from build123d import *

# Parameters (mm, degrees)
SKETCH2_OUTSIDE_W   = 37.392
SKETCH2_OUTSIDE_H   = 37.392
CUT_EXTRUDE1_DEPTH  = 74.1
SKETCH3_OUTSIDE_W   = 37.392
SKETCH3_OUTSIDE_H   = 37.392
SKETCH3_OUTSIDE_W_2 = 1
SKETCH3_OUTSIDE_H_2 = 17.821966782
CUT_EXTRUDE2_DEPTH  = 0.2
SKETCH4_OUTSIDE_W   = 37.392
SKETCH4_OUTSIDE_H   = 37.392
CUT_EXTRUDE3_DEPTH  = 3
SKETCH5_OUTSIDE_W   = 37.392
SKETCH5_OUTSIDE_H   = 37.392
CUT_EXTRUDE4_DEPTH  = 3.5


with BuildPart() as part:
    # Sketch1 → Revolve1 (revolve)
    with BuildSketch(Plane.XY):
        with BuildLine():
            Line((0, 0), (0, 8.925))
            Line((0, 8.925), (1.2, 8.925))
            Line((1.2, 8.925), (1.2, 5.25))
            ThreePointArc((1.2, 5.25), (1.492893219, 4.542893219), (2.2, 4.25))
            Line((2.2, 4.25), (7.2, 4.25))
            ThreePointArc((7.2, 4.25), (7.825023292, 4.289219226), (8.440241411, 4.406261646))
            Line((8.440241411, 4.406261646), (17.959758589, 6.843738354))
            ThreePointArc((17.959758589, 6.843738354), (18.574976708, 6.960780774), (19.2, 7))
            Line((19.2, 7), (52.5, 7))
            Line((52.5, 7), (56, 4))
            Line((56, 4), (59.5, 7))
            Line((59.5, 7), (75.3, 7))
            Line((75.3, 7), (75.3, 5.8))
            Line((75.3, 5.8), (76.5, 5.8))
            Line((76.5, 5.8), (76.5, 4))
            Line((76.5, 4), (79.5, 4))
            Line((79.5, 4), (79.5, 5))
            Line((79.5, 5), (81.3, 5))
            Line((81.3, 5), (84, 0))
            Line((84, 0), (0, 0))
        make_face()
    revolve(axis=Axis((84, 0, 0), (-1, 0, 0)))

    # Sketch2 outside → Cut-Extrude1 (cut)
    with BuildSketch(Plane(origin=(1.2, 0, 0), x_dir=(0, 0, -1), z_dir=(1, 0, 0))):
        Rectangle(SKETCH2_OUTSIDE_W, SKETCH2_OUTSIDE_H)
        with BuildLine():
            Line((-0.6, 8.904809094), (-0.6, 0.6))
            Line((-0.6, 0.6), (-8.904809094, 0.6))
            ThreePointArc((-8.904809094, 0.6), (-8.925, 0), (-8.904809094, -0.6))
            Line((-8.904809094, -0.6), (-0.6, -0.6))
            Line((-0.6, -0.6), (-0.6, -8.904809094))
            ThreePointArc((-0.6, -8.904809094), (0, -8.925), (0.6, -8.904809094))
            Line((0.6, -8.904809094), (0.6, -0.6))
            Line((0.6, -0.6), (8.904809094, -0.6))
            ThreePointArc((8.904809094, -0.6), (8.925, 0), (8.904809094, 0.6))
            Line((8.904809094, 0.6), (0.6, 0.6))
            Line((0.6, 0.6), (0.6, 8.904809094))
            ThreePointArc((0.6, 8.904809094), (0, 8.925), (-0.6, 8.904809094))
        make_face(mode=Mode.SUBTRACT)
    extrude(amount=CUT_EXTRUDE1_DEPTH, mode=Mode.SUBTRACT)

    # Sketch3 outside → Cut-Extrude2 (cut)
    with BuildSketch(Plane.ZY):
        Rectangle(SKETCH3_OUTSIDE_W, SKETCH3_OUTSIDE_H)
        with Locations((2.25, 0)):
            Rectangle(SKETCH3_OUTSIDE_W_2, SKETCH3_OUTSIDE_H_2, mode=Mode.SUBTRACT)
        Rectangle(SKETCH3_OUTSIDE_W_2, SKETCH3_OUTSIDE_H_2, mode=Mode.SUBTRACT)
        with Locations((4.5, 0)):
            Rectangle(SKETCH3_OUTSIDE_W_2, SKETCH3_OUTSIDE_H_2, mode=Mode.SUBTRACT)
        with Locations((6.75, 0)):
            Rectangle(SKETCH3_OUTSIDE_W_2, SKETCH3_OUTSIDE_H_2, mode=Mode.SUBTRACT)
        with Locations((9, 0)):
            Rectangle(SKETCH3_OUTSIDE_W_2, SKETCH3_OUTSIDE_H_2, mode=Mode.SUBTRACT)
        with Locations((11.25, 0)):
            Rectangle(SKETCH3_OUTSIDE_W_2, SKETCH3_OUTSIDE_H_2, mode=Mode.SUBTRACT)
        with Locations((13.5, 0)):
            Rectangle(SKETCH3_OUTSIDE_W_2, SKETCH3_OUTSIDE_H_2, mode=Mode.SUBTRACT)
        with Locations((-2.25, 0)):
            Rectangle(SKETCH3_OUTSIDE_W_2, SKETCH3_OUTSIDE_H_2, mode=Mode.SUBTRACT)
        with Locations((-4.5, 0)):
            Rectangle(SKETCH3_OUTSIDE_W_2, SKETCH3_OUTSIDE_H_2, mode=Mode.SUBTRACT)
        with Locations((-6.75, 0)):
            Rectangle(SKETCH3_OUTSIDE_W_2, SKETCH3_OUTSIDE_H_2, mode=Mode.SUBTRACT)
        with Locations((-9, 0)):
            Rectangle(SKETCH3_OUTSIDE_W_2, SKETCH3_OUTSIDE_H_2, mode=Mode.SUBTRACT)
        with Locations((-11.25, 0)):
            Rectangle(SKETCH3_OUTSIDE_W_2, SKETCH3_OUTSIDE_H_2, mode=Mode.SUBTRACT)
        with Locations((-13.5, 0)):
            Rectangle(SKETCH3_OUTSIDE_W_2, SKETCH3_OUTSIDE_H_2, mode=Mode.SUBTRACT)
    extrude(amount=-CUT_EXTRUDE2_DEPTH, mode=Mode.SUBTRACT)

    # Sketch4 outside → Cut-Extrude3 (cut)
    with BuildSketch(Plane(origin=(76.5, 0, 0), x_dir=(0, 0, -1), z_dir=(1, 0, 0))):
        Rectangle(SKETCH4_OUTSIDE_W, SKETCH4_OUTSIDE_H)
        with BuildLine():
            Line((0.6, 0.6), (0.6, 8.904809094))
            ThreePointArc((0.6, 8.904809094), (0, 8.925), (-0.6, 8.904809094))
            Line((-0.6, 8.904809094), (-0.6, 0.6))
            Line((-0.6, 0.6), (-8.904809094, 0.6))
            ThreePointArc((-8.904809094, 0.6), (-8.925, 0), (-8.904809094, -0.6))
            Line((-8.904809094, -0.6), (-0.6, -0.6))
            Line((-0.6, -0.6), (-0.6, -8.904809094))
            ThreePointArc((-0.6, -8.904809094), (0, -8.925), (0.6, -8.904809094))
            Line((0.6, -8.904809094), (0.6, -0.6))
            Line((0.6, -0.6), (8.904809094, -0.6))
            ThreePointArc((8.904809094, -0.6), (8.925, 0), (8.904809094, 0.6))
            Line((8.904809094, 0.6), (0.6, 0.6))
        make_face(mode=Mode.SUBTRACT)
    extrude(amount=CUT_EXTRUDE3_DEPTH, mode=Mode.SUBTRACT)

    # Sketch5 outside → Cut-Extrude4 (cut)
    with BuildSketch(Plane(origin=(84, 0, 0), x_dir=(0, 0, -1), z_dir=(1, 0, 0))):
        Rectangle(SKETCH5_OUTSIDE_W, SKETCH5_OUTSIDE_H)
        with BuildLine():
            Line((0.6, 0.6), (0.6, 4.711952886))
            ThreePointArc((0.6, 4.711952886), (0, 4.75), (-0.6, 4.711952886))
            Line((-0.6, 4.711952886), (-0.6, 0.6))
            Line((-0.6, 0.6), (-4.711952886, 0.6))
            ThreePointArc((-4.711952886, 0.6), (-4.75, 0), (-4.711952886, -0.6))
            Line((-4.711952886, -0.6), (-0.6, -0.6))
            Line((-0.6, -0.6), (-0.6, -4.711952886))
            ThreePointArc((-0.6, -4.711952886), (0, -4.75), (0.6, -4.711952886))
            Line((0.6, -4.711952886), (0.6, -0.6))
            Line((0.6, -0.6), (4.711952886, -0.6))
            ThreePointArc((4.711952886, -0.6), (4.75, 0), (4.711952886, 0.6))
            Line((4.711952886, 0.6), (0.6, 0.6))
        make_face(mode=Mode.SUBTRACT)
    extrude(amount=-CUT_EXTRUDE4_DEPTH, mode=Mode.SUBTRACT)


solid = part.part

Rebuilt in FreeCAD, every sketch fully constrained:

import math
import FreeCAD as App
import Part
import Sketcher

V = App.Vector
Q = App.Units.Quantity


def add_polygon(sketch, points):
    """Adds a closed chain of lines whose ends are joined by coincident constraints."""
    first, n = sketch.GeometryCount, len(points)
    for a, b in zip(points, points[1:] + points[:1]):
        sketch.addGeometry(Part.LineSegment(App.Vector(*a, 0), App.Vector(*b, 0)), False)
    for i in range(n):
        sketch.addConstraint(Sketcher.Constraint("Coincident", first + i, 2, first + (i + 1) % n, 1))

doc = App.newDocument("Part")
body = doc.addObject("PartDesign::Body", "Body")

# Sketch on XY plane
sketch1 = body.newObject("Sketcher::SketchObject", "Sketch")
sketch1.AttachmentSupport = (doc.getObject("XY_Plane"), [""])
sketch1.MapMode = "FlatFace"
sketch1.addGeometry(Part.LineSegment(V(0, 8.9, 0), V(0, 0, 0)), False)
sketch1.addGeometry(Part.LineSegment(V(0, 0, 0), V(84, 0, 0)), False)
sketch1.addGeometry(Part.LineSegment(V(84, 0, 0), V(81.3, 5, 0)), False)
sketch1.addGeometry(Part.LineSegment(V(81.3, 5, 0), V(79.5, 5, 0)), False)
sketch1.addGeometry(Part.LineSegment(V(79.5, 5, 0), V(79.5, 4, 0)), False)
sketch1.addGeometry(Part.LineSegment(V(79.5, 4, 0), V(76.5, 4, 0)), False)
sketch1.addGeometry(Part.LineSegment(V(76.5, 4, 0), V(76.5, 5.8, 0)), False)
sketch1.addGeometry(Part.LineSegment(V(76.5, 5.8, 0), V(75.3, 5.8, 0)), False)
sketch1.addGeometry(Part.LineSegment(V(75.3, 5.8, 0), V(75.3, 7, 0)), False)
sketch1.addGeometry(Part.LineSegment(V(75.3, 7, 0), V(59.5, 7, 0)), False)
sketch1.addGeometry(Part.LineSegment(V(59.5, 7, 0), V(56, 4, 0)), False)
sketch1.addGeometry(Part.LineSegment(V(56, 4, 0), V(52.5, 7, 0)), False)
sketch1.addGeometry(Part.LineSegment(V(52.5, 7, 0), V(19.2, 7, 0)), False)
sketch1.addGeometry(Part.ArcOfCircle(Part.Circle(V(19.2, 2, 0), V(0, 0, 1), 5), math.radians(90), math.radians(104.36)), False)
sketch1.addGeometry(Part.LineSegment(V(18, 6.8, 0), V(8.4, 4.4, 0)), False)
sketch1.addGeometry(Part.ArcOfCircle(Part.Circle(V(7.2, 9.2, 0), V(0, 0, 1), 5), math.radians(-90), math.radians(-75.64)), False)
sketch1.addGeometry(Part.LineSegment(V(7.2, 4.2, 0), V(2.2, 4.2, 0)), False)
sketch1.addGeometry(Part.ArcOfCircle(Part.Circle(V(2.2, 5.3, 0), V(0, 0, 1), 1), math.radians(-180), math.radians(-90)), False)
sketch1.addGeometry(Part.LineSegment(V(1.2, 5.2, 0), V(1.2, 8.9, 0)), False)
sketch1.addGeometry(Part.LineSegment(V(1.2, 8.9, 0), V(0, 8.9, 0)), False)
sketch1.addConstraint(Sketcher.Constraint("Coincident", 0, 2, 1, 1))
sketch1.addConstraint(Sketcher.Constraint("Coincident", 1, 2, 2, 1))
sketch1.addConstraint(Sketcher.Constraint("Coincident", 2, 2, 3, 1))
sketch1.addConstraint(Sketcher.Constraint("Coincident", 3, 2, 4, 1))
sketch1.addConstraint(Sketcher.Constraint("Coincident", 4, 2, 5, 1))
sketch1.addConstraint(Sketcher.Constraint("Coincident", 5, 2, 6, 1))
sketch1.addConstraint(Sketcher.Constraint("Coincident", 6, 2, 7, 1))
sketch1.addConstraint(Sketcher.Constraint("Coincident", 7, 2, 8, 1))
sketch1.addConstraint(Sketcher.Constraint("Coincident", 8, 2, 9, 1))
sketch1.addConstraint(Sketcher.Constraint("Coincident", 9, 2, 10, 1))
sketch1.addConstraint(Sketcher.Constraint("Coincident", 10, 2, 11, 1))
sketch1.addConstraint(Sketcher.Constraint("Coincident", 11, 2, 12, 1))
sketch1.addConstraint(Sketcher.Constraint("Tangent", 12, 2, 13, 1))
sketch1.addConstraint(Sketcher.Constraint("Tangent", 13, 2, 14, 1))
sketch1.addConstraint(Sketcher.Constraint("Tangent", 14, 2, 15, 2))
sketch1.addConstraint(Sketcher.Constraint("Tangent", 15, 1, 16, 1))
sketch1.addConstraint(Sketcher.Constraint("Tangent", 16, 2, 17, 2))
sketch1.addConstraint(Sketcher.Constraint("Tangent", 17, 1, 18, 1))
sketch1.addConstraint(Sketcher.Constraint("Coincident", 18, 2, 19, 1))
sketch1.addConstraint(Sketcher.Constraint("Coincident", 19, 2, 0, 1))
sketch1.addConstraint(Sketcher.Constraint("Vertical", 0))
sketch1.addConstraint(Sketcher.Constraint("Horizontal", 1))
sketch1.addConstraint(Sketcher.Constraint("Horizontal", 3))
sketch1.addConstraint(Sketcher.Constraint("Vertical", 4))
sketch1.addConstraint(Sketcher.Constraint("Horizontal", 5))
sketch1.addConstraint(Sketcher.Constraint("Vertical", 6))
sketch1.addConstraint(Sketcher.Constraint("Horizontal", 7))
sketch1.addConstraint(Sketcher.Constraint("Vertical", 8))
sketch1.addConstraint(Sketcher.Constraint("Horizontal", 9))
sketch1.addConstraint(Sketcher.Constraint("Horizontal", 12))
sketch1.addConstraint(Sketcher.Constraint("Horizontal", 16))
sketch1.addConstraint(Sketcher.Constraint("Vertical", 18))
sketch1.addConstraint(Sketcher.Constraint("Horizontal", 19))
sketch1.addConstraint(Sketcher.Constraint("Coincident", 0, 2, -1, 1))
sketch1.addConstraint(Sketcher.Constraint("Equal", 13, 15))
sketch1.addConstraint(Sketcher.Constraint("Horizontal", 5, 2, 10, 2))
sketch1.addConstraint(Sketcher.Constraint("Horizontal", 9, 2, 11, 2))
sketch1.addConstraint(Sketcher.Constraint("Equal", 7, 19))
sketch1.addConstraint(Sketcher.Constraint("Equal", 3, 6))
sketch1.addConstraint(Sketcher.Constraint("Equal", 19, 8))
sketch1.addConstraint(Sketcher.Constraint("Equal", 10, 11))
sketch1.addConstraint(Sketcher.Constraint("Radius", 13, Q("5 mm")))
sketch1.addConstraint(Sketcher.Constraint("Radius", 17, Q("1 mm")))
sketch1.addConstraint(Sketcher.Constraint("DistanceX", 1, 1, 1, 2, Q("84 mm")))
sketch1.addConstraint(Sketcher.Constraint("DistanceX", 5, 2, 5, 1, Q("3 mm")))
sketch1.addConstraint(Sketcher.Constraint("DistanceX", 16, 2, 16, 1, Q("5 mm")))
sketch1.addConstraint(Sketcher.Constraint("DistanceY", 4, 2, 4, 1, Q("1 mm")))
sketch1.addConstraint(Sketcher.Constraint("DistanceX", 3, 2, 3, 1, Q("1.8 mm")))
sketch1.addConstraint(Sketcher.Constraint("DistanceX", 7, 2, 7, 1, Q("1.2 mm")))
sketch1.addConstraint(Sketcher.Constraint("DistanceX", 9, 2, 9, 1, Q("15.8 mm")))
sketch1.addConstraint(Sketcher.Constraint("DistanceX", 12, 2, 12, 1, Q("33.3 mm")))
sketch1.addConstraint(Sketcher.Constraint("DistanceY", -1, 1, 13, 3, Q("2 mm")))
sketch1.addConstraint(Sketcher.Constraint("DistanceX", -1, 1, 10, 2, Q("56 mm")))
sketch1.addConstraint(Sketcher.Constraint("DistanceX", 15, 3, 13, 3, Q("12 mm")))
sketch1.addConstraint(Sketcher.Constraint("DistanceY", 0, 2, 0, 1, Q("8.925 mm")))
sketch1.addConstraint(Sketcher.Constraint("DistanceY", 18, 1, 18, 2, Q("3.675 mm")))
revolution = body.newObject("PartDesign::Revolution", "Revolution")
revolution.Profile = sketch1
revolution.ReferenceAxis = (sketch1, ["H_Axis"])
revolution.Angle = 360

# Sketch on YZ plane
sketch2 = body.newObject("Sketcher::SketchObject", "Sketch001")
sketch2.AttachmentSupport = (doc.getObject("YZ_Plane"), [""])
sketch2.MapMode = "FlatFace"
sketch2.AttachmentOffset = App.Placement(V(0, 0, 1.2), App.Rotation())
add_polygon(sketch2, [(18.7, 18.7), (-18.7, 18.7), (-18.7, -18.7), (18.7, -18.7)])  # lines 0-3
sketch2.addGeometry(Part.LineSegment(V(0.6, 0.6, 0), V(8.9, 0.6, 0)), False)  # 4
sketch2.addGeometry(Part.ArcOfCircle(Part.Circle(V(0, 0, 0), V(0, 0, 1), 8.9), math.radians(-3.85), math.radians(3.85)), False)  # 5
sketch2.addGeometry(Part.LineSegment(V(8.9, -0.6, 0), V(0.6, -0.6, 0)), False)  # 6
sketch2.addGeometry(Part.LineSegment(V(0.6, -0.6, 0), V(0.6, -8.9, 0)), False)  # 7
sketch2.addGeometry(Part.ArcOfCircle(Part.Circle(V(0, 0, 0), V(0, 0, 1), 8.9), math.radians(-93.85), math.radians(-86.15)), False)  # 8
sketch2.addGeometry(Part.LineSegment(V(-0.6, -8.9, 0), V(-0.6, -0.6, 0)), False)  # 9
sketch2.addGeometry(Part.LineSegment(V(-0.6, -0.6, 0), V(-8.9, -0.6, 0)), False)  # 10
sketch2.addGeometry(Part.ArcOfCircle(Part.Circle(V(0, 0, 0), V(0, 0, 1), 8.9), math.radians(176.15), math.radians(183.85)), False)  # 11
sketch2.addGeometry(Part.LineSegment(V(-8.9, 0.6, 0), V(-0.6, 0.6, 0)), False)  # 12
sketch2.addGeometry(Part.LineSegment(V(-0.6, 0.6, 0), V(-0.6, 8.9, 0)), False)  # 13
sketch2.addGeometry(Part.ArcOfCircle(Part.Circle(V(0, 0, 0), V(0, 0, 1), 8.9), math.radians(86.15), math.radians(93.85)), False)  # 14
sketch2.addGeometry(Part.LineSegment(V(0.6, 8.9, 0), V(0.6, 0.6, 0)), False)  # 15
sketch2.addConstraint(Sketcher.Constraint("Coincident", 4, 2, 5, 2))
sketch2.addConstraint(Sketcher.Constraint("Coincident", 5, 1, 6, 1))
sketch2.addConstraint(Sketcher.Constraint("Coincident", 6, 2, 7, 1))
sketch2.addConstraint(Sketcher.Constraint("Coincident", 7, 2, 8, 2))
sketch2.addConstraint(Sketcher.Constraint("Coincident", 8, 1, 9, 1))
sketch2.addConstraint(Sketcher.Constraint("Coincident", 9, 2, 10, 1))
sketch2.addConstraint(Sketcher.Constraint("Coincident", 10, 2, 11, 2))
sketch2.addConstraint(Sketcher.Constraint("Coincident", 11, 1, 12, 1))
sketch2.addConstraint(Sketcher.Constraint("Coincident", 12, 2, 13, 1))
sketch2.addConstraint(Sketcher.Constraint("Coincident", 13, 2, 14, 2))
sketch2.addConstraint(Sketcher.Constraint("Coincident", 14, 1, 15, 1))
sketch2.addConstraint(Sketcher.Constraint("Coincident", 15, 2, 4, 1))
sketch2.addConstraint(Sketcher.Constraint("Horizontal", 0))
sketch2.addConstraint(Sketcher.Constraint("Vertical", 1))
sketch2.addConstraint(Sketcher.Constraint("Horizontal", 2))
sketch2.addConstraint(Sketcher.Constraint("Vertical", 3))
sketch2.addConstraint(Sketcher.Constraint("Horizontal", 4))
sketch2.addConstraint(Sketcher.Constraint("Horizontal", 6))
sketch2.addConstraint(Sketcher.Constraint("Vertical", 7))
sketch2.addConstraint(Sketcher.Constraint("Vertical", 9))
sketch2.addConstraint(Sketcher.Constraint("Horizontal", 10))
sketch2.addConstraint(Sketcher.Constraint("Horizontal", 12))
sketch2.addConstraint(Sketcher.Constraint("Vertical", 13))
sketch2.addConstraint(Sketcher.Constraint("Vertical", 15))
sketch2.addConstraint(Sketcher.Constraint("Coincident", 5, 3, -1, 1))
sketch2.addConstraint(Sketcher.Constraint("Coincident", 8, 3, -1, 1))
sketch2.addConstraint(Sketcher.Constraint("Coincident", 11, 3, -1, 1))
sketch2.addConstraint(Sketcher.Constraint("Coincident", 14, 3, -1, 1))
sketch2.addConstraint(Sketcher.Constraint("Equal", 5, 8))
sketch2.addConstraint(Sketcher.Constraint("Equal", 8, 11))
sketch2.addConstraint(Sketcher.Constraint("Equal", 11, 14))
sketch2.addConstraint(Sketcher.Constraint("Symmetric", 0, 2, 2, 2, -1, 1))
sketch2.addConstraint(Sketcher.Constraint("Symmetric", 6, 2, 12, 2, -1, 1))
sketch2.addConstraint(Sketcher.Constraint("Symmetric", 9, 2, 15, 2, -1, 1))
sketch2.addConstraint(Sketcher.Constraint("Symmetric", 6, 2, 9, 2, -2))
sketch2.addConstraint(Sketcher.Constraint("Equal", 2, 1))
sketch2.addConstraint(Sketcher.Constraint("Equal", 12, 7))
sketch2.addConstraint(Sketcher.Constraint("Radius", 5, Q("8.925 mm")))
sketch2.addConstraint(Sketcher.Constraint("DistanceY", -1, 1, 4, 2, Q("0.6 mm")))
sketch2.addConstraint(Sketcher.Constraint("DistanceX", 0, 2, 0, 1, Q("37.392 mm")))
pocket1 = body.newObject("PartDesign::Pocket", "Pocket")
pocket1.Profile = sketch2
pocket1.Length = 74.1
pocket1.Reversed = True

# Sketch on YZ plane
sketch3 = body.newObject("Sketcher::SketchObject", "Sketch002")
sketch3.AttachmentSupport = (doc.getObject("YZ_Plane"), [""])
sketch3.MapMode = "FlatFace"
add_polygon(sketch3, [(18.7, -18.7), (-18.7, -18.7), (-18.7, 18.7), (18.7, 18.7)])  # lines 0-3
add_polygon(sketch3, [(-8.9, -13), (-8.9, -14), (8.9, -14), (8.9, -13)])  # lines 4-7
add_polygon(sketch3, [(-8.9, -10.8), (-8.9, -11.8), (8.9, -11.8), (8.9, -10.8)])  # lines 8-11
add_polygon(sketch3, [(-8.9, -8.5), (-8.9, -9.5), (8.9, -9.5), (8.9, -8.5)])  # lines 12-15
add_polygon(sketch3, [(-8.9, -6.2), (-8.9, -7.2), (8.9, -7.2), (8.9, -6.2)])  # lines 16-19
add_polygon(sketch3, [(-8.9, -4), (-8.9, -5), (8.9, -5), (8.9, -4)])  # lines 20-23
add_polygon(sketch3, [(-8.9, -1.8), (-8.9, -2.8), (8.9, -2.8), (8.9, -1.8)])  # lines 24-27
add_polygon(sketch3, [(-8.9, 0.5), (-8.9, -0.5), (8.9, -0.5), (8.9, 0.5)])  # lines 28-31
add_polygon(sketch3, [(-8.9, 2.8), (-8.9, 1.8), (8.9, 1.8), (8.9, 2.8)])  # lines 32-35
add_polygon(sketch3, [(-8.9, 5), (-8.9, 4), (8.9, 4), (8.9, 5)])  # lines 36-39
add_polygon(sketch3, [(-8.9, 7.2), (-8.9, 6.2), (8.9, 6.2), (8.9, 7.2)])  # lines 40-43
add_polygon(sketch3, [(-8.9, 9.5), (-8.9, 8.5), (8.9, 8.5), (8.9, 9.5)])  # lines 44-47
add_polygon(sketch3, [(-8.9, 11.8), (-8.9, 10.8), (8.9, 10.8), (8.9, 11.8)])  # lines 48-51
add_polygon(sketch3, [(-8.9, 14), (-8.9, 13), (8.9, 13), (8.9, 14)])  # lines 52-55
sketch3.addConstraint(Sketcher.Constraint("Horizontal", 0))
sketch3.addConstraint(Sketcher.Constraint("Vertical", 1))
sketch3.addConstraint(Sketcher.Constraint("Horizontal", 2))
sketch3.addConstraint(Sketcher.Constraint("Vertical", 3))
sketch3.addConstraint(Sketcher.Constraint("Vertical", 4))
sketch3.addConstraint(Sketcher.Constraint("Horizontal", 5))
sketch3.addConstraint(Sketcher.Constraint("Vertical", 6))
sketch3.addConstraint(Sketcher.Constraint("Horizontal", 7))
sketch3.addConstraint(Sketcher.Constraint("Vertical", 8))
sketch3.addConstraint(Sketcher.Constraint("Horizontal", 9))
sketch3.addConstraint(Sketcher.Constraint("Vertical", 10))
sketch3.addConstraint(Sketcher.Constraint("Horizontal", 11))
sketch3.addConstraint(Sketcher.Constraint("Vertical", 12))
sketch3.addConstraint(Sketcher.Constraint("Horizontal", 13))
sketch3.addConstraint(Sketcher.Constraint("Vertical", 14))
sketch3.addConstraint(Sketcher.Constraint("Horizontal", 15))
sketch3.addConstraint(Sketcher.Constraint("Vertical", 16))
sketch3.addConstraint(Sketcher.Constraint("Horizontal", 17))
sketch3.addConstraint(Sketcher.Constraint("Vertical", 18))
sketch3.addConstraint(Sketcher.Constraint("Horizontal", 19))
sketch3.addConstraint(Sketcher.Constraint("Vertical", 20))
sketch3.addConstraint(Sketcher.Constraint("Horizontal", 21))
sketch3.addConstraint(Sketcher.Constraint("Vertical", 22))
sketch3.addConstraint(Sketcher.Constraint("Horizontal", 23))
sketch3.addConstraint(Sketcher.Constraint("Vertical", 24))
sketch3.addConstraint(Sketcher.Constraint("Horizontal", 25))
sketch3.addConstraint(Sketcher.Constraint("Vertical", 26))
sketch3.addConstraint(Sketcher.Constraint("Horizontal", 27))
sketch3.addConstraint(Sketcher.Constraint("Vertical", 28))
sketch3.addConstraint(Sketcher.Constraint("Horizontal", 29))
sketch3.addConstraint(Sketcher.Constraint("Vertical", 30))
sketch3.addConstraint(Sketcher.Constraint("Horizontal", 31))
sketch3.addConstraint(Sketcher.Constraint("Vertical", 32))
sketch3.addConstraint(Sketcher.Constraint("Horizontal", 33))
sketch3.addConstraint(Sketcher.Constraint("Vertical", 34))
sketch3.addConstraint(Sketcher.Constraint("Horizontal", 35))
sketch3.addConstraint(Sketcher.Constraint("Vertical", 36))
sketch3.addConstraint(Sketcher.Constraint("Horizontal", 37))
sketch3.addConstraint(Sketcher.Constraint("Vertical", 38))
sketch3.addConstraint(Sketcher.Constraint("Horizontal", 39))
sketch3.addConstraint(Sketcher.Constraint("Vertical", 40))
sketch3.addConstraint(Sketcher.Constraint("Horizontal", 41))
sketch3.addConstraint(Sketcher.Constraint("Vertical", 42))
sketch3.addConstraint(Sketcher.Constraint("Horizontal", 43))
sketch3.addConstraint(Sketcher.Constraint("Vertical", 44))
sketch3.addConstraint(Sketcher.Constraint("Horizontal", 45))
sketch3.addConstraint(Sketcher.Constraint("Vertical", 46))
sketch3.addConstraint(Sketcher.Constraint("Horizontal", 47))
sketch3.addConstraint(Sketcher.Constraint("Vertical", 48))
sketch3.addConstraint(Sketcher.Constraint("Horizontal", 49))
sketch3.addConstraint(Sketcher.Constraint("Vertical", 50))
sketch3.addConstraint(Sketcher.Constraint("Horizontal", 51))
sketch3.addConstraint(Sketcher.Constraint("Vertical", 52))
sketch3.addConstraint(Sketcher.Constraint("Horizontal", 53))
sketch3.addConstraint(Sketcher.Constraint("Vertical", 54))
sketch3.addConstraint(Sketcher.Constraint("Horizontal", 55))
sketch3.addConstraint(Sketcher.Constraint("Symmetric", 0, 2, 2, 2, -1, 1))
sketch3.addConstraint(Sketcher.Constraint("Symmetric", 28, 2, 30, 2, -1, 1))
sketch3.addConstraint(Sketcher.Constraint("Symmetric", 26, 2, 32, 2, -1, 1))
sketch3.addConstraint(Sketcher.Constraint("Symmetric", 24, 2, 34, 2, -1, 1))
sketch3.addConstraint(Sketcher.Constraint("Symmetric", 22, 2, 36, 2, -1, 1))
sketch3.addConstraint(Sketcher.Constraint("Symmetric", 20, 2, 38, 2, -1, 1))
sketch3.addConstraint(Sketcher.Constraint("Symmetric", 18, 2, 40, 2, -1, 1))
sketch3.addConstraint(Sketcher.Constraint("Symmetric", 16, 2, 42, 2, -1, 1))
sketch3.addConstraint(Sketcher.Constraint("Symmetric", 14, 2, 44, 2, -1, 1))
sketch3.addConstraint(Sketcher.Constraint("Symmetric", 12, 2, 46, 2, -1, 1))
sketch3.addConstraint(Sketcher.Constraint("Symmetric", 10, 2, 48, 2, -1, 1))
sketch3.addConstraint(Sketcher.Constraint("Symmetric", 8, 2, 50, 2, -1, 1))
sketch3.addConstraint(Sketcher.Constraint("Symmetric", 6, 2, 52, 2, -1, 1))
sketch3.addConstraint(Sketcher.Constraint("Symmetric", 4, 2, 54, 2, -1, 1))
sketch3.addConstraint(Sketcher.Constraint("Vertical", 7, 2, 8, 2))
sketch3.addConstraint(Sketcher.Constraint("Vertical", 6, 2, 9, 2))
sketch3.addConstraint(Sketcher.Constraint("Vertical", 11, 2, 12, 2))
sketch3.addConstraint(Sketcher.Constraint("Vertical", 10, 2, 13, 2))
sketch3.addConstraint(Sketcher.Constraint("Vertical", 15, 2, 16, 2))
sketch3.addConstraint(Sketcher.Constraint("Vertical", 14, 2, 17, 2))
sketch3.addConstraint(Sketcher.Constraint("Vertical", 19, 2, 20, 2))
sketch3.addConstraint(Sketcher.Constraint("Vertical", 18, 2, 21, 2))
sketch3.addConstraint(Sketcher.Constraint("Vertical", 23, 2, 24, 2))
sketch3.addConstraint(Sketcher.Constraint("Vertical", 22, 2, 25, 2))
sketch3.addConstraint(Sketcher.Constraint("Vertical", 27, 2, 28, 2))
sketch3.addConstraint(Sketcher.Constraint("Vertical", 26, 2, 29, 2))
sketch3.addConstraint(Sketcher.Constraint("Equal", 2, 1))
sketch3.addConstraint(Sketcher.Constraint("Equal", 6, 8))
sketch3.addConstraint(Sketcher.Constraint("Equal", 10, 12))
sketch3.addConstraint(Sketcher.Constraint("Equal", 14, 16))
sketch3.addConstraint(Sketcher.Constraint("Equal", 18, 20))
sketch3.addConstraint(Sketcher.Constraint("Equal", 22, 24))
sketch3.addConstraint(Sketcher.Constraint("Equal", 26, 28))
sketch3.addConstraint(Sketcher.Constraint("DistanceY", 4, 2, 4, 1, Q("1 mm")))
sketch3.addConstraint(Sketcher.Constraint("DistanceY", 4, 2, -1, 1, Q("14 mm")))
sketch3.addConstraint(Sketcher.Constraint("DistanceY", 20, 2, -1, 1, Q("5 mm")))
sketch3.addConstraint(Sketcher.Constraint("DistanceY", 12, 2, -1, 1, Q("9.5 mm")))
sketch3.addConstraint(Sketcher.Constraint("DistanceY", 11, 2, 16, 2, Q("3.5 mm")))
sketch3.addConstraint(Sketcher.Constraint("DistanceY", 19, 2, 24, 2, Q("3.5 mm")))
sketch3.addConstraint(Sketcher.Constraint("DistanceY", 27, 2, 32, 2, Q("3.5 mm")))
sketch3.addConstraint(Sketcher.Constraint("DistanceX", 0, 2, 0, 1, Q("37.392 mm")))
sketch3.addConstraint(Sketcher.Constraint("DistanceX", 5, 1, 5, 2, Q("17.821967 mm")))
pocket2 = body.newObject("PartDesign::Pocket", "Pocket001")
pocket2.Profile = sketch3
pocket2.Length = 0.2
pocket2.Reversed = True

# Sketch on YZ plane
sketch4 = body.newObject("Sketcher::SketchObject", "Sketch003")
sketch4.AttachmentSupport = (doc.getObject("YZ_Plane"), [""])
sketch4.MapMode = "FlatFace"
sketch4.AttachmentOffset = App.Placement(V(0, 0, 76.5), App.Rotation())
add_polygon(sketch4, [(18.7, 18.7), (-18.7, 18.7), (-18.7, -18.7), (18.7, -18.7)])  # lines 0-3
sketch4.addGeometry(Part.LineSegment(V(8.9, -0.6, 0), V(0.6, -0.6, 0)), False)  # 4
sketch4.addGeometry(Part.LineSegment(V(0.6, -0.6, 0), V(0.6, -8.9, 0)), False)  # 5
sketch4.addGeometry(Part.ArcOfCircle(Part.Circle(V(0, 0, 0), V(0, 0, 1), 8.9), math.radians(-93.85), math.radians(-86.15)), False)  # 6
sketch4.addGeometry(Part.LineSegment(V(-0.6, -8.9, 0), V(-0.6, -0.6, 0)), False)  # 7
sketch4.addGeometry(Part.LineSegment(V(-0.6, -0.6, 0), V(-8.9, -0.6, 0)), False)  # 8
sketch4.addGeometry(Part.ArcOfCircle(Part.Circle(V(0, 0, 0), V(0, 0, 1), 8.9), math.radians(176.15), math.radians(183.85)), False)  # 9
sketch4.addGeometry(Part.LineSegment(V(-8.9, 0.6, 0), V(-0.6, 0.6, 0)), False)  # 10
sketch4.addGeometry(Part.LineSegment(V(-0.6, 0.6, 0), V(-0.6, 8.9, 0)), False)  # 11
sketch4.addGeometry(Part.ArcOfCircle(Part.Circle(V(0, 0, 0), V(0, 0, 1), 8.9), math.radians(86.15), math.radians(93.85)), False)  # 12
sketch4.addGeometry(Part.LineSegment(V(0.6, 8.9, 0), V(0.6, 0.6, 0)), False)  # 13
sketch4.addGeometry(Part.LineSegment(V(0.6, 0.6, 0), V(8.9, 0.6, 0)), False)  # 14
sketch4.addGeometry(Part.ArcOfCircle(Part.Circle(V(0, 0, 0), V(0, 0, 1), 8.9), math.radians(-3.85), math.radians(3.85)), False)  # 15
sketch4.addConstraint(Sketcher.Constraint("Coincident", 4, 2, 5, 1))
sketch4.addConstraint(Sketcher.Constraint("Coincident", 5, 2, 6, 2))
sketch4.addConstraint(Sketcher.Constraint("Coincident", 6, 1, 7, 1))
sketch4.addConstraint(Sketcher.Constraint("Coincident", 7, 2, 8, 1))
sketch4.addConstraint(Sketcher.Constraint("Coincident", 8, 2, 9, 2))
sketch4.addConstraint(Sketcher.Constraint("Coincident", 9, 1, 10, 1))
sketch4.addConstraint(Sketcher.Constraint("Coincident", 10, 2, 11, 1))
sketch4.addConstraint(Sketcher.Constraint("Coincident", 11, 2, 12, 2))
sketch4.addConstraint(Sketcher.Constraint("Coincident", 12, 1, 13, 1))
sketch4.addConstraint(Sketcher.Constraint("Coincident", 13, 2, 14, 1))
sketch4.addConstraint(Sketcher.Constraint("Coincident", 14, 2, 15, 2))
sketch4.addConstraint(Sketcher.Constraint("Coincident", 15, 1, 4, 1))
sketch4.addConstraint(Sketcher.Constraint("Horizontal", 0))
sketch4.addConstraint(Sketcher.Constraint("Vertical", 1))
sketch4.addConstraint(Sketcher.Constraint("Horizontal", 2))
sketch4.addConstraint(Sketcher.Constraint("Vertical", 3))
sketch4.addConstraint(Sketcher.Constraint("Horizontal", 4))
sketch4.addConstraint(Sketcher.Constraint("Vertical", 5))
sketch4.addConstraint(Sketcher.Constraint("Vertical", 7))
sketch4.addConstraint(Sketcher.Constraint("Horizontal", 8))
sketch4.addConstraint(Sketcher.Constraint("Horizontal", 10))
sketch4.addConstraint(Sketcher.Constraint("Vertical", 11))
sketch4.addConstraint(Sketcher.Constraint("Vertical", 13))
sketch4.addConstraint(Sketcher.Constraint("Horizontal", 14))
sketch4.addConstraint(Sketcher.Constraint("Coincident", 6, 3, -1, 1))
sketch4.addConstraint(Sketcher.Constraint("Coincident", 9, 3, -1, 1))
sketch4.addConstraint(Sketcher.Constraint("Coincident", 12, 3, -1, 1))
sketch4.addConstraint(Sketcher.Constraint("Coincident", 15, 3, -1, 1))
sketch4.addConstraint(Sketcher.Constraint("Equal", 6, 9))
sketch4.addConstraint(Sketcher.Constraint("Equal", 9, 12))
sketch4.addConstraint(Sketcher.Constraint("Equal", 12, 15))
sketch4.addConstraint(Sketcher.Constraint("Symmetric", 0, 2, 2, 2, -1, 1))
sketch4.addConstraint(Sketcher.Constraint("Symmetric", 4, 2, 10, 2, -1, 1))
sketch4.addConstraint(Sketcher.Constraint("Symmetric", 7, 2, 13, 2, -1, 1))
sketch4.addConstraint(Sketcher.Constraint("Symmetric", 4, 2, 7, 2, -2))
sketch4.addConstraint(Sketcher.Constraint("Equal", 2, 1))
sketch4.addConstraint(Sketcher.Constraint("Equal", 14, 5))
sketch4.addConstraint(Sketcher.Constraint("Radius", 6, Q("8.925 mm")))
sketch4.addConstraint(Sketcher.Constraint("DistanceX", -1, 1, 4, 2, Q("0.6 mm")))
sketch4.addConstraint(Sketcher.Constraint("DistanceX", 0, 2, 0, 1, Q("37.392 mm")))
pocket3 = body.newObject("PartDesign::Pocket", "Pocket002")
pocket3.Profile = sketch4
pocket3.Length = 3
pocket3.Reversed = True

# Sketch on YZ plane
sketch5 = body.newObject("Sketcher::SketchObject", "Sketch004")
sketch5.AttachmentSupport = (doc.getObject("YZ_Plane"), [""])
sketch5.MapMode = "FlatFace"
sketch5.AttachmentOffset = App.Placement(V(0, 0, 84), App.Rotation())
add_polygon(sketch5, [(18.7, 18.7), (-18.7, 18.7), (-18.7, -18.7), (18.7, -18.7)])  # lines 0-3
sketch5.addGeometry(Part.LineSegment(V(4.7, -0.6, 0), V(0.6, -0.6, 0)), False)  # 4
sketch5.addGeometry(Part.LineSegment(V(0.6, -0.6, 0), V(0.6, -4.7, 0)), False)  # 5
sketch5.addGeometry(Part.ArcOfCircle(Part.Circle(V(0, 0, 0), V(0, 0, 1), 4.7), math.radians(-97.26), math.radians(-82.74)), False)  # 6
sketch5.addGeometry(Part.LineSegment(V(-0.6, -4.7, 0), V(-0.6, -0.6, 0)), False)  # 7
sketch5.addGeometry(Part.LineSegment(V(-0.6, -0.6, 0), V(-4.7, -0.6, 0)), False)  # 8
sketch5.addGeometry(Part.ArcOfCircle(Part.Circle(V(0, 0, 0), V(0, 0, 1), 4.7), math.radians(172.74), math.radians(187.26)), False)  # 9
sketch5.addGeometry(Part.LineSegment(V(-4.7, 0.6, 0), V(-0.6, 0.6, 0)), False)  # 10
sketch5.addGeometry(Part.LineSegment(V(-0.6, 0.6, 0), V(-0.6, 4.7, 0)), False)  # 11
sketch5.addGeometry(Part.ArcOfCircle(Part.Circle(V(0, 0, 0), V(0, 0, 1), 4.7), math.radians(82.74), math.radians(97.26)), False)  # 12
sketch5.addGeometry(Part.LineSegment(V(0.6, 4.7, 0), V(0.6, 0.6, 0)), False)  # 13
sketch5.addGeometry(Part.LineSegment(V(0.6, 0.6, 0), V(4.7, 0.6, 0)), False)  # 14
sketch5.addGeometry(Part.ArcOfCircle(Part.Circle(V(0, 0, 0), V(0, 0, 1), 4.7), math.radians(-7.26), math.radians(7.26)), False)  # 15
sketch5.addConstraint(Sketcher.Constraint("Coincident", 4, 2, 5, 1))
sketch5.addConstraint(Sketcher.Constraint("Coincident", 5, 2, 6, 2))
sketch5.addConstraint(Sketcher.Constraint("Coincident", 6, 1, 7, 1))
sketch5.addConstraint(Sketcher.Constraint("Coincident", 7, 2, 8, 1))
sketch5.addConstraint(Sketcher.Constraint("Coincident", 8, 2, 9, 2))
sketch5.addConstraint(Sketcher.Constraint("Coincident", 9, 1, 10, 1))
sketch5.addConstraint(Sketcher.Constraint("Coincident", 10, 2, 11, 1))
sketch5.addConstraint(Sketcher.Constraint("Coincident", 11, 2, 12, 2))
sketch5.addConstraint(Sketcher.Constraint("Coincident", 12, 1, 13, 1))
sketch5.addConstraint(Sketcher.Constraint("Coincident", 13, 2, 14, 1))
sketch5.addConstraint(Sketcher.Constraint("Coincident", 14, 2, 15, 2))
sketch5.addConstraint(Sketcher.Constraint("Coincident", 15, 1, 4, 1))
sketch5.addConstraint(Sketcher.Constraint("Horizontal", 0))
sketch5.addConstraint(Sketcher.Constraint("Vertical", 1))
sketch5.addConstraint(Sketcher.Constraint("Horizontal", 2))
sketch5.addConstraint(Sketcher.Constraint("Vertical", 3))
sketch5.addConstraint(Sketcher.Constraint("Horizontal", 4))
sketch5.addConstraint(Sketcher.Constraint("Vertical", 5))
sketch5.addConstraint(Sketcher.Constraint("Vertical", 7))
sketch5.addConstraint(Sketcher.Constraint("Horizontal", 8))
sketch5.addConstraint(Sketcher.Constraint("Horizontal", 10))
sketch5.addConstraint(Sketcher.Constraint("Vertical", 11))
sketch5.addConstraint(Sketcher.Constraint("Vertical", 13))
sketch5.addConstraint(Sketcher.Constraint("Horizontal", 14))
sketch5.addConstraint(Sketcher.Constraint("Coincident", 6, 3, -1, 1))
sketch5.addConstraint(Sketcher.Constraint("Coincident", 9, 3, -1, 1))
sketch5.addConstraint(Sketcher.Constraint("Coincident", 12, 3, -1, 1))
sketch5.addConstraint(Sketcher.Constraint("Coincident", 15, 3, -1, 1))
sketch5.addConstraint(Sketcher.Constraint("Equal", 6, 9))
sketch5.addConstraint(Sketcher.Constraint("Equal", 9, 12))
sketch5.addConstraint(Sketcher.Constraint("Equal", 12, 15))
sketch5.addConstraint(Sketcher.Constraint("Symmetric", 0, 2, 2, 2, -1, 1))
sketch5.addConstraint(Sketcher.Constraint("Symmetric", 4, 2, 10, 2, -1, 1))
sketch5.addConstraint(Sketcher.Constraint("Symmetric", 7, 2, 13, 2, -1, 1))
sketch5.addConstraint(Sketcher.Constraint("Symmetric", 4, 2, 7, 2, -2))
sketch5.addConstraint(Sketcher.Constraint("Equal", 2, 1))
sketch5.addConstraint(Sketcher.Constraint("Equal", 14, 5))
sketch5.addConstraint(Sketcher.Constraint("Radius", 6, Q("4.75 mm")))
sketch5.addConstraint(Sketcher.Constraint("DistanceX", -1, 1, 4, 2, Q("0.6 mm")))
sketch5.addConstraint(Sketcher.Constraint("DistanceX", 0, 2, 0, 1, Q("37.392 mm")))
pocket4 = body.newObject("PartDesign::Pocket", "Pocket003")
pocket4.Profile = sketch5
pocket4.Length = 3.5

doc.recompute()
